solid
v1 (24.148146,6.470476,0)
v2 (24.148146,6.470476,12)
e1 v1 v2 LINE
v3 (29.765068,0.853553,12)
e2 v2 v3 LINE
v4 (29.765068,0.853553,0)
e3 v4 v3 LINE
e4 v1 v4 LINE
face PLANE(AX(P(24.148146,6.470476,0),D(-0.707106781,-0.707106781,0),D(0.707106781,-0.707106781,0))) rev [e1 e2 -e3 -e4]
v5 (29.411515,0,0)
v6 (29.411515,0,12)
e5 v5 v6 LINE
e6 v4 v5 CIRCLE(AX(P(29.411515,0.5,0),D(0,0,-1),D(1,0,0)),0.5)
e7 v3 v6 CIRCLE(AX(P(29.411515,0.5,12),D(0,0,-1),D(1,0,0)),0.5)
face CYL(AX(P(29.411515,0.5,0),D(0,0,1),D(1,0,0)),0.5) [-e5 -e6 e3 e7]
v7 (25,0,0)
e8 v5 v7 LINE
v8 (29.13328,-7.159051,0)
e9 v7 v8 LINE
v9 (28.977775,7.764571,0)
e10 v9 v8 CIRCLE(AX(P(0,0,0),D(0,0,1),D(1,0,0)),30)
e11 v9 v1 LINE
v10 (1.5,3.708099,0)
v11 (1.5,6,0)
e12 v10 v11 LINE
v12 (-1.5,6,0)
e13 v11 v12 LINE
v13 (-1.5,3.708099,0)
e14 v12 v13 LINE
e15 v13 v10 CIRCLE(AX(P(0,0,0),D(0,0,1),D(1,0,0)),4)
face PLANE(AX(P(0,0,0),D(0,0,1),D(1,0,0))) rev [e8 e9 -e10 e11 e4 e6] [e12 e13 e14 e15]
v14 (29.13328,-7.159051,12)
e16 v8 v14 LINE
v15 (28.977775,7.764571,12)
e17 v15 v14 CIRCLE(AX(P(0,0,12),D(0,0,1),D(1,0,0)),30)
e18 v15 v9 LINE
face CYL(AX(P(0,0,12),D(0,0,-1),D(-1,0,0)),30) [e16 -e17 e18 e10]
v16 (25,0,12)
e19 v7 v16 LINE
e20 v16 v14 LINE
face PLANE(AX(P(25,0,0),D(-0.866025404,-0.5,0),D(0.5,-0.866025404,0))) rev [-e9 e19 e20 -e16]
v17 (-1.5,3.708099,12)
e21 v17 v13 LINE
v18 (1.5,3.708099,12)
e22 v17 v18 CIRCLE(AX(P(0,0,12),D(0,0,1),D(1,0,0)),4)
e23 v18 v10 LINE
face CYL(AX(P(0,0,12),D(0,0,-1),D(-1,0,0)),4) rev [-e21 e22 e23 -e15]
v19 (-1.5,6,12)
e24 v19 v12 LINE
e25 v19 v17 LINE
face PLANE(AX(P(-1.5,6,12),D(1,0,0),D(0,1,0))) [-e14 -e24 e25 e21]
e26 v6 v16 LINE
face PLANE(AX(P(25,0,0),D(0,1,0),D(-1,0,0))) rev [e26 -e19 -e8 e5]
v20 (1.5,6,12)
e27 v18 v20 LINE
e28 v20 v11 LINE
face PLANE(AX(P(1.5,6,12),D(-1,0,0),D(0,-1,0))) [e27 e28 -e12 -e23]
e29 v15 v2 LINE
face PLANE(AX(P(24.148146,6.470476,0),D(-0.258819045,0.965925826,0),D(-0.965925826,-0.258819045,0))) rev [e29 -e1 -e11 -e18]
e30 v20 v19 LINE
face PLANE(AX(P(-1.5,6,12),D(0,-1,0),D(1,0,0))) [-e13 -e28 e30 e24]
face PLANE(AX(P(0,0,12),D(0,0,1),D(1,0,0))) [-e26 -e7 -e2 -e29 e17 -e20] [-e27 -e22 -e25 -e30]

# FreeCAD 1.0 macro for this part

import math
import FreeCAD as App
import Part
import Sketcher
from FreeCAD import Vector
Q = App.Units.Quantity

doc = App.newDocument("Part")
body = doc.addObject("PartDesign::Body", "Body")

# Sketch on XY plane
sketch1 = body.newObject("Sketcher::SketchObject", "Sketch")
sketch1.AttachmentSupport = (doc.getObject("XY_Plane"), [""])
sketch1.MapMode = "FlatFace"
sketch1.addGeometry(Part.Circle(Vector(0, 0, 0), Vector(0, 0, 1), 30), False)
sketch1.addGeometry(Part.LineSegment(Vector(-1.5, 3.7, 0), Vector(-1.5, 6, 0)), False)
sketch1.addGeometry(Part.LineSegment(Vector(-1.5, 6, 0), Vector(1.5, 6, 0)), False)
sketch1.addGeometry(Part.LineSegment(Vector(1.5, 6, 0), Vector(1.5, 3.7, 0)), False)
sketch1.addGeometry(Part.ArcOfCircle(Part.Circle(Vector(0, 0, 0), Vector(0, 0, 1), 4), math.radians(112), math.radians(428)), False)
sketch1.addConstraint(Sketcher.Constraint("Coincident", 1, 2, 2, 1))
sketch1.addConstraint(Sketcher.Constraint("Coincident", 2, 2, 3, 1))
sketch1.addConstraint(Sketcher.Constraint("Coincident", 3, 2, 4, 2))
sketch1.addConstraint(Sketcher.Constraint("Coincident", 4, 1, 1, 1))
sketch1.addConstraint(Sketcher.Constraint("Vertical", 1))
sketch1.addConstraint(Sketcher.Constraint("Horizontal", 2))
sketch1.addConstraint(Sketcher.Constraint("Vertical", 3))
sketch1.addConstraint(Sketcher.Constraint("Coincident", 0, 3, -1, 1))
sketch1.addConstraint(Sketcher.Constraint("Coincident", 4, 3, -1, 1))
sketch1.addConstraint(Sketcher.Constraint("Horizontal", 3, 2, 4, 1))
sketch1.addConstraint(Sketcher.Constraint("Diameter", 0, Q("60 mm")))
sketch1.addConstraint(Sketcher.Constraint("Radius", 4, Q("4 mm")))
sketch1.addConstraint(Sketcher.Constraint("DistanceX", 2, 1, 2, 2, Q("3 mm")))
sketch1.addConstraint(Sketcher.Constraint("DistanceY", -1, 1, 1, 2, Q("6 mm")))
pad1 = body.newObject("PartDesign::Pad", "Pad")
pad1.Profile = sketch1
pad1.Length = 12

# Sketch on XY plane
sketch2 = body.newObject("Sketcher::SketchObject", "Sketch001")
sketch2.AttachmentSupport = (doc.getObject("XY_Plane"), [""])
sketch2.MapMode = "FlatFace"
sketch2.AttachmentOffset = App.Placement(Vector(0, 0, 12), App.Rotation())
sketch2.addGeometry(Part.LineSegment(Vector(29.4, 0, 0), Vector(25, 0, 0)), False)
sketch2.addGeometry(Part.LineSegment(Vector(25, 0, 0), Vector(29.6, -7.9, 0)), False)
sketch2.addGeometry(Part.LineSegment(Vector(29.6, -7.9, 0), Vector(34.6, 9.3, 0)), False)
sketch2.addGeometry(Part.LineSegment(Vector(34.6, 9.3, 0), Vector(24.1, 6.5, 0)), False)
sketch2.addGeometry(Part.LineSegment(Vector(24.1, 6.5, 0), Vector(29.8, 0.9, 0)), False)
sketch2.addGeometry(Part.ArcOfCircle(Part.Circle(Vector(29.4, 0.5, 0), Vector(0, 0, 1), 0.5), math.radians(-90), math.radians(45)), False)
sketch2.addConstraint(Sketcher.Constraint("Coincident", 0, 2, 1, 1))
sketch2.addConstraint(Sketcher.Constraint("Coincident", 1, 2, 2, 1))
sketch2.addConstraint(Sketcher.Constraint("Coincident", 2, 2, 3, 1))
sketch2.addConstraint(Sketcher.Constraint("Coincident", 3, 2, 4, 1))
sketch2.addConstraint(Sketcher.Constraint("Tangent", 4, 2, 5, 2))
sketch2.addConstraint(Sketcher.Constraint("Tangent", 5, 1, 0, 1))
sketch2.addConstraint(Sketcher.Constraint("Horizontal", 0))
sketch2.addConstraint(Sketcher.Constraint("PointOnObject", 0, 2, -1))
sketch2.addConstraint(Sketcher.Constraint("Radius", 5, Q("0.5 mm")))
sketch2.addConstraint(Sketcher.Constraint("Angle", 1, Q("-60 deg")))
sketch2.addConstraint(Sketcher.Constraint("Angle", 3, Q("-165 deg")))
sketch2.addConstraint(Sketcher.Constraint("Angle", 4, Q("-45 deg")))
sketch2.addConstraint(Sketcher.Constraint("DistanceX", -1, 1, 0, 2, Q("25 mm")))
sketch2.addConstraint(Sketcher.Constraint("DistanceY", 1, 2, 2, 2, Q("17.193499 mm")))
sketch2.addConstraint(Sketcher.Constraint("Distance", 4, Q("7.943528 mm")))
sketch2.addConstraint(Sketcher.Constraint("DistanceX", 0, 2, 0, 1, Q("4.411515 mm")))
sketch2.addConstraint(Sketcher.Constraint("DistanceX", 5, 3, 2, 2, Q("5.18018 mm")))
pocket1 = body.newObject("PartDesign::Pocket", "Pocket")
pocket1.Profile = sketch2
pocket1.Length = 12

doc.recompute()
